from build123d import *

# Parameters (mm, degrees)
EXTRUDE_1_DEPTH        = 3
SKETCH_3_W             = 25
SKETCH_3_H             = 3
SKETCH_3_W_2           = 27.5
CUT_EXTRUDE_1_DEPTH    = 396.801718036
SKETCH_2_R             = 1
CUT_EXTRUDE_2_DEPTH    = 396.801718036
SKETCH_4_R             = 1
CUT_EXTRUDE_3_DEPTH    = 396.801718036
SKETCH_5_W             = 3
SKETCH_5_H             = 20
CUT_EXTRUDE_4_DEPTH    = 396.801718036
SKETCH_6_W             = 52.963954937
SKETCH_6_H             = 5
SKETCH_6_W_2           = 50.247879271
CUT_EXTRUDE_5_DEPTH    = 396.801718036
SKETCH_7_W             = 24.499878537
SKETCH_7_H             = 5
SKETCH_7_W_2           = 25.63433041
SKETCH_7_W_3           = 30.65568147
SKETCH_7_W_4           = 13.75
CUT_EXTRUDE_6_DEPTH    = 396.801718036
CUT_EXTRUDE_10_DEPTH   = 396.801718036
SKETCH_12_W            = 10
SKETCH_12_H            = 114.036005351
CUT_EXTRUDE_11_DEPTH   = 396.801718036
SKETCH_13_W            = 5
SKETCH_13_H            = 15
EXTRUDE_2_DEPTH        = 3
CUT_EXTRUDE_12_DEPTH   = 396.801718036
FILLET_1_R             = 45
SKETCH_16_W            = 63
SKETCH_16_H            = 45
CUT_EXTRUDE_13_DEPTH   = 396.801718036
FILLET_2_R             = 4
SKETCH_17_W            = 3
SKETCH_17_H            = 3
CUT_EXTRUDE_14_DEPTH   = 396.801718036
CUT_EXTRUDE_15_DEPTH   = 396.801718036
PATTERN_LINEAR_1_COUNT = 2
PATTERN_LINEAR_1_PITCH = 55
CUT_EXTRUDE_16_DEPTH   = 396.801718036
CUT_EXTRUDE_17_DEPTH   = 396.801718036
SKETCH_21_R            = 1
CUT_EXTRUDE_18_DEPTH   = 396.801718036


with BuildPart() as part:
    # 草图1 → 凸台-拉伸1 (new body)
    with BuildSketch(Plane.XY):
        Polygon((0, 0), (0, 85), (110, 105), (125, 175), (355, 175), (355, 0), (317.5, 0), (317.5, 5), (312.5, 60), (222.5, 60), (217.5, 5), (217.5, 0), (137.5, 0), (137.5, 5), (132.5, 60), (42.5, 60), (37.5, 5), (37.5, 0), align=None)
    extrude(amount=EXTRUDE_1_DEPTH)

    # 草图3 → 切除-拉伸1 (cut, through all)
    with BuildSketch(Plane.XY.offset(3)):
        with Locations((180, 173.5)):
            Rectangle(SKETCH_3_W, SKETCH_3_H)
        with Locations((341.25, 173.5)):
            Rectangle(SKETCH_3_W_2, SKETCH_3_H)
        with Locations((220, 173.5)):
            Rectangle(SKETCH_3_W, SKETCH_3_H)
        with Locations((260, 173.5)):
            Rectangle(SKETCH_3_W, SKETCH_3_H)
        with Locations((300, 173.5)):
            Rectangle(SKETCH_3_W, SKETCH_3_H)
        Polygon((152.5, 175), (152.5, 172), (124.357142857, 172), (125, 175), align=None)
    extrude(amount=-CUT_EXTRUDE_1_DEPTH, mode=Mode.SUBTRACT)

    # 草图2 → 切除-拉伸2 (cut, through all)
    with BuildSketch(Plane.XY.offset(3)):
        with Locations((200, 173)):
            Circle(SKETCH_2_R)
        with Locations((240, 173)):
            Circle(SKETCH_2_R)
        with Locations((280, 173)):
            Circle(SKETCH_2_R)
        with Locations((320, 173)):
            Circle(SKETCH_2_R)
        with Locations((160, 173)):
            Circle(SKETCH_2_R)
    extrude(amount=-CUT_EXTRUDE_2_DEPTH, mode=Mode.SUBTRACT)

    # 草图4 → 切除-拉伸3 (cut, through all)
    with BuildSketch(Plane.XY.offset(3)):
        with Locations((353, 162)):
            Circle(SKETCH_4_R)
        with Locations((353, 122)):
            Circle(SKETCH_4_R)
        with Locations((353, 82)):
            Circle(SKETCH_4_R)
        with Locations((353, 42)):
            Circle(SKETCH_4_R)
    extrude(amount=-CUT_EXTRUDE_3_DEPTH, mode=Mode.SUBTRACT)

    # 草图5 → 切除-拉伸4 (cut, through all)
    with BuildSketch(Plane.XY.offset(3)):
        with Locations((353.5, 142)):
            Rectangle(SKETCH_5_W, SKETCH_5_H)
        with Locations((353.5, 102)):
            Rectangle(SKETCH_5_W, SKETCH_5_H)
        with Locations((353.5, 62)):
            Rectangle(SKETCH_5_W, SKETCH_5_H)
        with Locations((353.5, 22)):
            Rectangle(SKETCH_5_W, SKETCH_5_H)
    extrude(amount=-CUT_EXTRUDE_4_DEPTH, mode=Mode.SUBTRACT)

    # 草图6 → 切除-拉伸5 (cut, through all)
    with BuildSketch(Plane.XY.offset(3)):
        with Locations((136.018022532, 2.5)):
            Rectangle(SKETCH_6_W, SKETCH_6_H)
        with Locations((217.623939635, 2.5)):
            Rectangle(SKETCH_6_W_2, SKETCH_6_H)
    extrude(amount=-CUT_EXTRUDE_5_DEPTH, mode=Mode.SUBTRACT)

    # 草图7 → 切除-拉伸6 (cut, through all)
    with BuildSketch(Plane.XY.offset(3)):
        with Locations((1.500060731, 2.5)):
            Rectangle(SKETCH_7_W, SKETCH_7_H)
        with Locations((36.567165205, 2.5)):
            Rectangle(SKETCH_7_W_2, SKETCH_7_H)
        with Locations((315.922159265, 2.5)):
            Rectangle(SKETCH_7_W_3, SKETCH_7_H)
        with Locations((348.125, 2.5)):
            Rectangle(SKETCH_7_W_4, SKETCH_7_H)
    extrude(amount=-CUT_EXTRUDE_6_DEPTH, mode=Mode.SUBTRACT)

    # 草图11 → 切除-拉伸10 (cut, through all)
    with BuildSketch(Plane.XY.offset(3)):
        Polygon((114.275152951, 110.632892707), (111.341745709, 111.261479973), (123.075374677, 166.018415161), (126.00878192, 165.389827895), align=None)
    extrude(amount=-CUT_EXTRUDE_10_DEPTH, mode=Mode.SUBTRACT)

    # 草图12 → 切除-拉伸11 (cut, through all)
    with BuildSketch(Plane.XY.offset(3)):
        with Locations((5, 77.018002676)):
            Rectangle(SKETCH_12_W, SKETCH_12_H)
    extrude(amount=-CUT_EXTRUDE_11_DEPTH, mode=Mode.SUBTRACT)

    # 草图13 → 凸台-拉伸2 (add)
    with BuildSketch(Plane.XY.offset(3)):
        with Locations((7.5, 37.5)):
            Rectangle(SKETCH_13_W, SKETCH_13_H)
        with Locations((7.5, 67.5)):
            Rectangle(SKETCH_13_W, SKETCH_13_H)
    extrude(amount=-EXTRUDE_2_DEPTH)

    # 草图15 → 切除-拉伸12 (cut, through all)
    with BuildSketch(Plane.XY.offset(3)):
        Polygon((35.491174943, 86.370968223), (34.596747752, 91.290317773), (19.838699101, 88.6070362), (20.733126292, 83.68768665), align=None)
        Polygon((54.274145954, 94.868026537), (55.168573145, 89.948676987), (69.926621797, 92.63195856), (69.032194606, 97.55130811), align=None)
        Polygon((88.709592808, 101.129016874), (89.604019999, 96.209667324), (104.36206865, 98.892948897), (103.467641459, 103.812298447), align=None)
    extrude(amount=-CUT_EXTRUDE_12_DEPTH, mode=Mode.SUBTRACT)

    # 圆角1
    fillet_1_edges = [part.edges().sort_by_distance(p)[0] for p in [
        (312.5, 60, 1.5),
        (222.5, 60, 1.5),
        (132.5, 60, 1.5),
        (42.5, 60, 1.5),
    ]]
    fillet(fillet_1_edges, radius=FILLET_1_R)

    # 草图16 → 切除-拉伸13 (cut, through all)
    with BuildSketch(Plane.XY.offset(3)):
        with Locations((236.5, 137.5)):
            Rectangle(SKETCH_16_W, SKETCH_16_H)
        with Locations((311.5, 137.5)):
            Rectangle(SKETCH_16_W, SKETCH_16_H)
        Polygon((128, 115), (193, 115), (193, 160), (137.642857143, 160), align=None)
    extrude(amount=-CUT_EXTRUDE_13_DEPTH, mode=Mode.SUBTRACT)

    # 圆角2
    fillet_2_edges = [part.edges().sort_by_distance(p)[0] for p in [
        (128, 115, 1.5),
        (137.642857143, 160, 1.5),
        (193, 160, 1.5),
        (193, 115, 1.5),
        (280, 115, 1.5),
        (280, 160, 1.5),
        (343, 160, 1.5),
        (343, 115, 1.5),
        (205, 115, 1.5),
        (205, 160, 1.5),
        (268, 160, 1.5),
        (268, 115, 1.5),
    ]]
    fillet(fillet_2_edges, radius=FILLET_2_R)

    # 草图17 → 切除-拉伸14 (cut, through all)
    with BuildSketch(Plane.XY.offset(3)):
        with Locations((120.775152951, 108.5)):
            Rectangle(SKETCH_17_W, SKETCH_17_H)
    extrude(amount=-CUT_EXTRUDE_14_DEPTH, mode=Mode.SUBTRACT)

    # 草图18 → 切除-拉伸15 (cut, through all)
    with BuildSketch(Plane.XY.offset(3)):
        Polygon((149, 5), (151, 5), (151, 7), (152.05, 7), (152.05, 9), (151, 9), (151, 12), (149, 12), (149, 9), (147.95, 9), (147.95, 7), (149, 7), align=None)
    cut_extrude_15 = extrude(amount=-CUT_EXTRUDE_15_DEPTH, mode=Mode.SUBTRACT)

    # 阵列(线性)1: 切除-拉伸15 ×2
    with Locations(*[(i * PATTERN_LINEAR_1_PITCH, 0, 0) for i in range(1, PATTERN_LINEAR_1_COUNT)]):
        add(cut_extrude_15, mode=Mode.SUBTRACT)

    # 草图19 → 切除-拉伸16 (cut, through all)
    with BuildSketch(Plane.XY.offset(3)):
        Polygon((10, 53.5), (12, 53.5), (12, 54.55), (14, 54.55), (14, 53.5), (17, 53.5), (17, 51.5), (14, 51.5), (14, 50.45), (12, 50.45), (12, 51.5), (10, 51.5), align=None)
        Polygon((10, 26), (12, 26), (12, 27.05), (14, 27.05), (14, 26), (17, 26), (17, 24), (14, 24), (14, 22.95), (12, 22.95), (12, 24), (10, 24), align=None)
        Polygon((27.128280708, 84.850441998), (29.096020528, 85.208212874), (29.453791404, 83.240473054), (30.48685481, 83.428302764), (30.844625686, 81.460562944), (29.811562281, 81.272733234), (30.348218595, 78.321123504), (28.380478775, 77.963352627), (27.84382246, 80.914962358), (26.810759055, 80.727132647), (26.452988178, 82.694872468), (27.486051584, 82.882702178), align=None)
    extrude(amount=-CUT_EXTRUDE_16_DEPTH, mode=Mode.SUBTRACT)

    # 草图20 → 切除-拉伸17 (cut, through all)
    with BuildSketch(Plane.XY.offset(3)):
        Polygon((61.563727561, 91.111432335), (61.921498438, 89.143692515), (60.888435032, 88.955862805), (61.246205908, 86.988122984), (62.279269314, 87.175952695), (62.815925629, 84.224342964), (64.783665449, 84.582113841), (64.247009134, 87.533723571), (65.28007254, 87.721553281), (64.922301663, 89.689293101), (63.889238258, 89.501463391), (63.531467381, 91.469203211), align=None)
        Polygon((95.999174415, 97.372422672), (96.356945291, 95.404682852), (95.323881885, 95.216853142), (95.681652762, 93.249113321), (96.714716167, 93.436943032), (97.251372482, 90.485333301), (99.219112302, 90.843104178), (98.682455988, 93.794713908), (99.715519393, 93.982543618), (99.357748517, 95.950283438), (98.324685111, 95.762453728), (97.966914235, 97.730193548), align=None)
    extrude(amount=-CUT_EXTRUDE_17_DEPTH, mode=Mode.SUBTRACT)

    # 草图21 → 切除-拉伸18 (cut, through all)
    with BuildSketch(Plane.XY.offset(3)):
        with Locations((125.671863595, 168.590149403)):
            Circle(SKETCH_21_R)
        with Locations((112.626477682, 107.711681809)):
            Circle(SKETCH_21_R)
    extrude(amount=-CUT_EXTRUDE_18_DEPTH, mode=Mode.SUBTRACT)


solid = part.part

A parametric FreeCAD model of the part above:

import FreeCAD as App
import Part
import Sketcher
from FreeCAD import Vector


def edges_at(feature, points):
    """Names of the edges that pass closest to the given points."""
    edges = feature.Shape.Edges
    near = lambda p: min(range(len(edges)), key=lambda i: edges[i].distToShape(Part.Vertex(*p))[0])
    return sorted({f"Edge{near(p) + 1}" for p in points})


def add_polygon(sketch, points):
    """Adds a closed chain of lines whose ends are joined by coincident constraints."""
    first, n = sketch.GeometryCount, len(points)
    for a, b in zip(points, points[1:] + points[:1]):
        sketch.addGeometry(Part.LineSegment(App.Vector(*a, 0), App.Vector(*b, 0)), False)
    for i in range(n):
        sketch.addConstraint(Sketcher.Constraint("Coincident", first + i, 2, first + (i + 1) % n, 1))

doc = App.newDocument("Part")
body = doc.addObject("PartDesign::Body", "Body")

sketch1 = body.newObject("Sketcher::SketchObject", "Sketch")
sketch1.AttachmentSupport = (doc.getObject("XY_Plane"), [""])
sketch1.MapMode = "FlatFace"
add_polygon(sketch1, [(0, 85), (0, 0), (37.5, 0), (37.5, 5), (42.5, 60), (132.5, 60), (137.5, 5), (137.5, 0), (217.5, 0), (217.5, 5), (222.5, 60), (312.5, 60), (317.5, 5), (317.5, 0), (355, 0), (355, 175), (125, 175), (110, 105)])
sketch1.addConstraint([
    Sketcher.Constraint("Vertical", 0),
    Sketcher.Constraint("Horizontal", 1),
    Sketcher.Constraint("Vertical", 2),
    Sketcher.Constraint("Horizontal", 4),
    Sketcher.Constraint("Vertical", 6),
    Sketcher.Constraint("Horizontal", 7),
    Sketcher.Constraint("Vertical", 8),
    Sketcher.Constraint("Horizontal", 10),
    Sketcher.Constraint("Vertical", 12),
    Sketcher.Constraint("Horizontal", 13),
    Sketcher.Constraint("Vertical", 14),
    Sketcher.Constraint("Horizontal", 15),
    Sketcher.Constraint("Coincident", 0, 2, -1, 1),
    Sketcher.Constraint("PointOnObject", 6, 2, -1),
    Sketcher.Constraint("PointOnObject", 12, 2, -1),
    Sketcher.Constraint("Parallel", 3, 9),
    Sketcher.Constraint("Parallel", 5, 11),
    Sketcher.Constraint("Horizontal", 2, 2, 5, 2),
    Sketcher.Constraint("Horizontal", 5, 2, 8, 2),
    Sketcher.Constraint("Horizontal", 4, 2, 9, 2),
    Sketcher.Constraint("Horizontal", 8, 2, 11, 2),
    Sketcher.Constraint("Equal", 4, 10),
    Sketcher.Constraint("Equal", 1, 13),
    Sketcher.Constraint("Equal", 3, 5),
    Sketcher.Constraint("DistanceX", 4, 1, 4, 2, 90.0),
    Sketcher.Constraint("DistanceX", 7, 1, 7, 2, 80.0),
    Sketcher.Constraint("DistanceX", 15, 2, 15, 1, 230.0),
    Sketcher.Constraint("DistanceY", 0, 2, 0, 1, 85.0),
    Sketcher.Constraint("DistanceY", 2, 1, 2, 2, 5.0),
    Sketcher.Constraint("DistanceY", 14, 1, 14, 2, 175.0),
    Sketcher.Constraint("DistanceX", 1, 1, 1, 2, 37.5),
    Sketcher.Constraint("DistanceY", -1, 1, 3, 2, 60.0),
    Sketcher.Constraint("DistanceX", -1, 1, 13, 2, 355.0),
    Sketcher.Constraint("DistanceX", -1, 1, 16, 2, 110.0),
    Sketcher.Constraint("DistanceY", -1, 1, 16, 2, 105.0),
])
pad1 = body.newObject("PartDesign::Pad", "Pad")
pad1.Profile = sketch1
pad1.Length = 3

sketch2 = body.newObject("Sketcher::SketchObject", "Sketch001")
sketch2.AttachmentSupport = (doc.getObject("XY_Plane"), [""])
sketch2.MapMode = "FlatFace"
sketch2.AttachmentOffset = App.Placement(Vector(0, 0, 3), App.Rotation())
add_polygon(sketch2, [(167.5, 175), (167.5, 172), (192.5, 172), (192.5, 175)])
add_polygon(sketch2, [(327.5, 175), (327.5, 172), (355, 172), (355, 175)])
add_polygon(sketch2, [(207.5, 175), (207.5, 172), (232.5, 172), (232.5, 175)])
add_polygon(sketch2, [(247.5, 175), (247.5, 172), (272.5, 172), (272.5, 175)])
add_polygon(sketch2, [(287.5, 175), (287.5, 172), (312.5, 172), (312.5, 175)])
add_polygon(sketch2, [(152.5, 172), (152.5, 175), (125, 175), (124.357143, 172)])
sketch2.addConstraint([
    Sketcher.Constraint("Vertical", 0),
    Sketcher.Constraint("Horizontal", 1),
    Sketcher.Constraint("Vertical", 2),
    Sketcher.Constraint("Horizontal", 3),
    Sketcher.Constraint("Vertical", 4),
    Sketcher.Constraint("Horizontal", 5),
    Sketcher.Constraint("Vertical", 6),
    Sketcher.Constraint("Horizontal", 7),
    Sketcher.Constraint("Vertical", 8),
    Sketcher.Constraint("Horizontal", 9),
    Sketcher.Constraint("Vertical", 10),
    Sketcher.Constraint("Horizontal", 11),
    Sketcher.Constraint("Vertical", 12),
    Sketcher.Constraint("Horizontal", 13),
    Sketcher.Constraint("Vertical", 14),
    Sketcher.Constraint("Horizontal", 15),
    Sketcher.Constraint("Vertical", 16),
    Sketcher.Constraint("Horizontal", 17),
    Sketcher.Constraint("Vertical", 18),
    Sketcher.Constraint("Horizontal", 19),
    Sketcher.Constraint("Vertical", 20),
    Sketcher.Constraint("Horizontal", 21),
    Sketcher.Constraint("Horizontal", 23),
    Sketcher.Constraint("Horizontal", 1, 2, 4, 2),
    Sketcher.Constraint("Horizontal", 3, 2, 6, 2),
    Sketcher.Constraint("Horizontal", 5, 2, 8, 2),
    Sketcher.Constraint("Horizontal", 7, 2, 10, 2),
    Sketcher.Constraint("Horizontal", 9, 2, 12, 2),
    Sketcher.Constraint("Horizontal", 11, 2, 14, 2),
    Sketcher.Constraint("Horizontal", 13, 2, 16, 2),
    Sketcher.Constraint("Horizontal", 15, 2, 18, 2),
    Sketcher.Constraint("Horizontal", 19, 2, 20, 2),
    Sketcher.Constraint("Horizontal", 17, 2, 22, 2),
    Sketcher.Constraint("Equal", 3, 9),
    Sketcher.Constraint("Equal", 11, 13),
    Sketcher.Constraint("Equal", 15, 17),
    Sketcher.Constraint("Equal", 7, 21),
    Sketcher.Constraint("DistanceX", 1, 1, 1, 2, 25.0),
    Sketcher.Constraint("DistanceY", 0, 2, 0, 1, 3.0),
    Sketcher.Constraint("DistanceX", 5, 1, 5, 2, 27.5),
    Sketcher.Constraint("DistanceY", -1, 1, 0, 2, 172.0),
    Sketcher.Constraint("DistanceX", -1, 1, 5, 2, 355.0),
    Sketcher.Constraint("DistanceX", -1, 1, 21, 2, 125.0),
    Sketcher.Constraint("DistanceX", 1, 2, 4, 2, 135.0),
    Sketcher.Constraint("DistanceX", 1, 2, 8, 2, 15.0),
    Sketcher.Constraint("DistanceX", 9, 2, 12, 2, 15.0),
    Sketcher.Constraint("DistanceX", 13, 2, 16, 2, 15.0),
    Sketcher.Constraint("DistanceX", 23, 1, 23, 2, 28.142857),
])
pocket1 = body.newObject("PartDesign::Pocket", "Pocket")
pocket1.Profile = sketch2
pocket1.Type = "ThroughAll"

sketch3 = body.newObject("Sketcher::SketchObject", "Sketch002")
sketch3.AttachmentSupport = (doc.getObject("XY_Plane"), [""])
sketch3.MapMode = "FlatFace"
sketch3.AttachmentOffset = App.Placement(Vector(0, 0, 3), App.Rotation())
sketch3.addGeometry([
    Part.Circle(Vector(200, 173, 0), Vector(0, 0, 1), 1),
    Part.Circle(Vector(240, 173, 0), Vector(0, 0, 1), 1),
    Part.Circle(Vector(280, 173, 0), Vector(0, 0, 1), 1),
    Part.Circle(Vector(320, 173, 0), Vector(0, 0, 1), 1),
    Part.Circle(Vector(160, 173, 0), Vector(0, 0, 1), 1),
], False)
sketch3.addConstraint([
    Sketcher.Constraint("Equal", 0, 1),
    Sketcher.Constraint("Equal", 1, 2),
    Sketcher.Constraint("Equal", 2, 3),
    Sketcher.Constraint("Equal", 3, 4),
    Sketcher.Constraint("Horizontal", 0, 3, 1, 3),
    Sketcher.Constraint("Horizontal", 1, 3, 2, 3),
    Sketcher.Constraint("Horizontal", 2, 3, 3, 3),
    Sketcher.Constraint("Horizontal", 3, 3, 4, 3),
    Sketcher.Constraint("Diameter", 0, 2.0),
    Sketcher.Constraint("DistanceX", -1, 1, 0, 3, 200.0),
    Sketcher.Constraint("DistanceY", -1, 1, 0, 3, 173.0),
    Sketcher.Constraint("DistanceX", -1, 1, 1, 3, 240.0),
    Sketcher.Constraint("DistanceX", -1, 1, 2, 3, 280.0),
    Sketcher.Constraint("DistanceX", -1, 1, 3, 3, 320.0),
    Sketcher.Constraint("DistanceX", -1, 1, 4, 3, 160.0),
])
pocket2 = body.newObject("PartDesign::Pocket", "Pocket001")
pocket2.Profile = sketch3
pocket2.Type = "ThroughAll"

sketch4 = body.newObject("Sketcher::SketchObject", "Sketch003")
sketch4.AttachmentSupport = (doc.getObject("XY_Plane"), [""])
sketch4.MapMode = "FlatFace"
sketch4.AttachmentOffset = App.Placement(Vector(0, 0, 3), App.Rotation())
sketch4.addGeometry([
    Part.Circle(Vector(353, 162, 0), Vector(0, 0, 1), 1),
    Part.Circle(Vector(353, 122, 0), Vector(0, 0, 1), 1),
    Part.Circle(Vector(353, 82, 0), Vector(0, 0, 1), 1),
    Part.Circle(Vector(353, 42, 0), Vector(0, 0, 1), 1),
], False)
sketch4.addConstraint([
    Sketcher.Constraint("Equal", 0, 1),
    Sketcher.Constraint("Equal", 1, 2),
    Sketcher.Constraint("Equal", 2, 3),
    Sketcher.Constraint("Vertical", 0, 3, 1, 3),
    Sketcher.Constraint("Vertical", 1, 3, 2, 3),
    Sketcher.Constraint("Vertical", 2, 3, 3, 3),
    Sketcher.Constraint("Diameter", 0, 2.0),
    Sketcher.Constraint("DistanceX", -1, 1, 0, 3, 353.0),
    Sketcher.Constraint("DistanceY", -1, 1, 0, 3, 162.0),
    Sketcher.Constraint("DistanceY", -1, 1, 1, 3, 122.0),
    Sketcher.Constraint("DistanceY", -1, 1, 2, 3, 82.0),
    Sketcher.Constraint("DistanceY", -1, 1, 3, 3, 42.0),
])
pocket3 = body.newObject("PartDesign::Pocket", "Pocket002")
pocket3.Profile = sketch4
pocket3.Type = "ThroughAll"

sketch5 = body.newObject("Sketcher::SketchObject", "Sketch004")
sketch5.AttachmentSupport = (doc.getObject("XY_Plane"), [""])
sketch5.MapMode = "FlatFace"
sketch5.AttachmentOffset = App.Placement(Vector(0, 0, 3), App.Rotation())
add_polygon(sketch5, [(352, 152), (352, 132), (355, 132), (355, 152)])
add_polygon(sketch5, [(352, 112), (352, 92), (355, 92), (355, 112)])
add_polygon(sketch5, [(352, 72), (352, 52), (355, 52), (355, 72)])
add_polygon(sketch5, [(352, 32), (352, 12), (355, 12), (355, 32)])
sketch5.addConstraint([
    Sketcher.Constraint("Vertical", 0),
    Sketcher.Constraint("Horizontal", 1),
    Sketcher.Constraint("Vertical", 2),
    Sketcher.Constraint("Horizontal", 3),
    Sketcher.Constraint("Vertical", 4),
    Sketcher.Constraint("Horizontal", 5),
    Sketcher.Constraint("Vertical", 6),
    Sketcher.Constraint("Horizontal", 7),
    Sketcher.Constraint("Vertical", 8),
    Sketcher.Constraint("Horizontal", 9),
    Sketcher.Constraint("Vertical", 10),
    Sketcher.Constraint("Horizontal", 11),
    Sketcher.Constraint("Vertical", 12),
    Sketcher.Constraint("Horizontal", 13),
    Sketcher.Constraint("Vertical", 14),
    Sketcher.Constraint("Horizontal", 15),
    Sketcher.Constraint("Vertical", 3, 2, 4, 2),
    Sketcher.Constraint("Vertical", 2, 2, 5, 2),
    Sketcher.Constraint("Vertical", 7, 2, 8, 2),
    Sketcher.Constraint("Vertical", 6, 2, 9, 2),
    Sketcher.Constraint("Vertical", 11, 2, 12, 2),
    Sketcher.Constraint("Vertical", 10, 2, 13, 2),
    Sketcher.Constraint("Equal", 2, 4),
    Sketcher.Constraint("Equal", 6, 8),
    Sketcher.Constraint("Equal", 10, 12),
    Sketcher.Constraint("DistanceX", 1, 1, 1, 2, 3.0),
    Sketcher.Constraint("DistanceY", 0, 2, 0, 1, 20.0),
    Sketcher.Constraint("DistanceX", -1, 1, 0, 2, 352.0),
    Sketcher.Constraint("DistanceY", -1, 1, 0, 2, 132.0),
    Sketcher.Constraint("DistanceY", -1, 1, 4, 2, 92.0),
    Sketcher.Constraint("DistanceY", -1, 1, 8, 2, 52.0),
    Sketcher.Constraint("DistanceY", -1, 1, 12, 2, 12.0),
])
pocket4 = body.newObject("PartDesign::Pocket", "Pocket003")
pocket4.Profile = sketch5
pocket4.Type = "ThroughAll"

sketch6 = body.newObject("Sketcher::SketchObject", "Sketch005")
sketch6.AttachmentSupport = (doc.getObject("XY_Plane"), [""])
sketch6.MapMode = "FlatFace"
sketch6.AttachmentOffset = App.Placement(Vector(0, 0, 3), App.Rotation())
add_polygon(sketch6, [(109.536045, 5), (109.536045, 0), (162.5, 0), (162.5, 5)])
add_polygon(sketch6, [(192.5, 5), (192.5, 0), (242.747879, 0), (242.747879, 5)])
sketch6.addConstraint([
    Sketcher.Constraint("Vertical", 0),
    Sketcher.Constraint("Horizontal", 1),
    Sketcher.Constraint("Vertical", 2),
    Sketcher.Constraint("Horizontal", 3),
    Sketcher.Constraint("Vertical", 4),
    Sketcher.Constraint("Horizontal", 5),
    Sketcher.Constraint("Vertical", 6),
    Sketcher.Constraint("Horizontal", 7),
    Sketcher.Constraint("PointOnObject", 0, 2, -1),
    Sketcher.Constraint("PointOnObject", 4, 2, -1),
    Sketcher.Constraint("Horizontal", 3, 2, 6, 2),
    Sketcher.Constraint("DistanceY", 0, 2, 0, 1, 5.0),
    Sketcher.Constraint("DistanceX", 1, 2, 4, 2, 30.0),
    Sketcher.Constraint("DistanceX", -1, 1, 1, 2, 162.5),
    Sketcher.Constraint("DistanceX", 5, 1, 5, 2, 50.247879),
    Sketcher.Constraint("DistanceX", 1, 1, 1, 2, 52.963955),
])
pocket5 = body.newObject("PartDesign::Pocket", "Pocket004")
pocket5.Profile = sketch6
pocket5.Type = "ThroughAll"

sketch7 = body.newObject("Sketcher::SketchObject", "Sketch006")
sketch7.AttachmentSupport = (doc.getObject("XY_Plane"), [""])
sketch7.MapMode = "FlatFace"
sketch7.AttachmentOffset = App.Placement(Vector(0, 0, 3), App.Rotation())
add_polygon(sketch7, [(-10.749879, 5), (-10.749879, 0), (13.75, 0), (13.75, 5)])
add_polygon(sketch7, [(23.75, 5), (23.75, 0), (49.38433, 0), (49.38433, 5)])
add_polygon(sketch7, [(300.594319, 5), (300.594319, 0), (331.25, 0), (331.25, 5)])
add_polygon(sketch7, [(341.25, 5), (341.25, 0), (355, 0), (355, 5)])
sketch7.addConstraint([
    Sketcher.Constraint("Vertical", 0),
    Sketcher.Constraint("Horizontal", 1),
    Sketcher.Constraint("Vertical", 2),
    Sketcher.Constraint("Horizontal", 3),
    Sketcher.Constraint("Vertical", 4),
    Sketcher.Constraint("Horizontal", 5),
    Sketcher.Constraint("Vertical", 6),
    Sketcher.Constraint("Horizontal", 7),
    Sketcher.Constraint("Vertical", 8),
    Sketcher.Constraint("Horizontal", 9),
    Sketcher.Constraint("Vertical", 10),
    Sketcher.Constraint("Horizontal", 11),
    Sketcher.Constraint("Vertical", 12),
    Sketcher.Constraint("Horizontal", 13),
    Sketcher.Constraint("Vertical", 14),
    Sketcher.Constraint("Horizontal", 15),
    Sketcher.Constraint("PointOnObject", 0, 2, -1),
    Sketcher.Constraint("PointOnObject", 4, 2, -1),
    Sketcher.Constraint("PointOnObject", 8, 2, -1),
    Sketcher.Constraint("PointOnObject", 12, 2, -1),
    Sketcher.Constraint("Horizontal", 3, 2, 6, 2),
    Sketcher.Constraint("Horizontal", 7, 2, 10, 2),
    Sketcher.Constraint("Horizontal", 11, 2, 14, 2),
    Sketcher.Constraint("DistanceY", 0, 2, 0, 1, 5.0),
    Sketcher.Constraint("DistanceX", -1, 1, 13, 2, 355.0),
    Sketcher.Constraint("DistanceX", 1, 2, 4, 2, 10.0),
    Sketcher.Constraint("DistanceX", 9, 2, 12, 2, 10.0),
    Sketcher.Constraint("DistanceX", 13, 1, 13, 2, 13.75),
    Sketcher.Constraint("DistanceX", 4, 2, 9, 2, 307.5),
    Sketcher.Constraint("DistanceX", 1, 1, 1, 2, 24.499879),
    Sketcher.Constraint("DistanceX", 5, 1, 5, 2, 25.63433),
    Sketcher.Constraint("DistanceX", 9, 1, 9, 2, 30.655681),
])
pocket6 = body.newObject("PartDesign::Pocket", "Pocket005")
pocket6.Profile = sketch7
pocket6.Type = "ThroughAll"

sketch8 = body.newObject("Sketcher::SketchObject", "Sketch007")
sketch8.AttachmentSupport = (doc.getObject("XY_Plane"), [""])
sketch8.MapMode = "FlatFace"
sketch8.AttachmentOffset = App.Placement(Vector(0, 0, 3), App.Rotation())
add_polygon(sketch8, [(111.341746, 111.26148), (114.275153, 110.632893), (126.008782, 165.389828), (123.075375, 166.018415)])
sketch8.addConstraint([
    Sketcher.Constraint("Perpendicular", 0, 1),
    Sketcher.Constraint("Perpendicular", 1, 2),
    Sketcher.Constraint("Perpendicular", 2, 3),
    Sketcher.Constraint("Distance", 0, 3.0),
    Sketcher.Constraint("Distance", 1, 56.0),
    Sketcher.Constraint("DistanceX", -1, 1, 1, 2, 126.008782),
    Sketcher.Constraint("DistanceY", -1, 1, 3, 2, 111.26148),
    Sketcher.Constraint("DistanceX", 0, 2, 1, 2, 11.733629),
])
pocket7 = body.newObject("PartDesign::Pocket", "Pocket006")
pocket7.Profile = sketch8
pocket7.Type = "ThroughAll"

sketch9 = body.newObject("Sketcher::SketchObject", "Sketch008")
sketch9.AttachmentSupport = (doc.getObject("XY_Plane"), [""])
sketch9.MapMode = "FlatFace"
sketch9.AttachmentOffset = App.Placement(Vector(0, 0, 3), App.Rotation())
add_polygon(sketch9, [(0, 134.036005), (0, 20), (10, 20), (10, 134.036005)])
sketch9.addConstraint([
    Sketcher.Constraint("Vertical", 0),
    Sketcher.Constraint("Horizontal", 1),
    Sketcher.Constraint("Vertical", 2),
    Sketcher.Constraint("Horizontal", 3),
    Sketcher.Constraint("PointOnObject", 0, 2, -2),
    Sketcher.Constraint("DistanceX", 1, 1, 1, 2, 10.0),
    Sketcher.Constraint("DistanceY", -1, 1, 0, 2, 20.0),
    Sketcher.Constraint("DistanceY", 0, 2, 0, 1, 114.036005),
])
pocket8 = body.newObject("PartDesign::Pocket", "Pocket007")
pocket8.Profile = sketch9
pocket8.Type = "ThroughAll"

sketch10 = body.newObject("Sketcher::SketchObject", "Sketch009")
sketch10.AttachmentSupport = (doc.getObject("XY_Plane"), [""])
sketch10.MapMode = "FlatFace"
sketch10.AttachmentOffset = App.Placement(Vector(0, 0, 3), App.Rotation())
add_polygon(sketch10, [(5, 45), (5, 30), (10, 30), (10, 45)])
add_polygon(sketch10, [(5, 75), (5, 60), (10, 60), (10, 75)])
sketch10.addConstraint([
    Sketcher.Constraint("Vertical", 0),
    Sketcher.Constraint("Horizontal", 1),
    Sketcher.Constraint("Vertical", 2),
    Sketcher.Constraint("Horizontal", 3),
    Sketcher.Constraint("Vertical", 4),
    Sketcher.Constraint("Horizontal", 5),
    Sketcher.Constraint("Vertical", 6),
    Sketcher.Constraint("Horizontal", 7),
    Sketcher.Constraint("Vertical", 3, 2, 4, 2),
    Sketcher.Constraint("Vertical", 2, 2, 5, 2),
    Sketcher.Constraint("Equal", 2, 4),
    Sketcher.Constraint("DistanceX", 1, 1, 1, 2, 5.0),
    Sketcher.Constraint("DistanceY", 0, 2, 0, 1, 15.0),
    Sketcher.Constraint("DistanceX", -1, 1, 0, 2, 5.0),
    Sketcher.Constraint("DistanceY", -1, 1, 0, 2, 30.0),
    Sketcher.Constraint("DistanceY", -1, 1, 4, 2, 60.0),
])
pad2 = body.newObject("PartDesign::Pad", "Pad001")
pad2.Profile = sketch10
pad2.Length = 3
pad2.Reversed = True

sketch11 = body.newObject("Sketcher::SketchObject", "Sketch010")
sketch11.AttachmentSupport = (doc.getObject("XY_Plane"), [""])
sketch11.MapMode = "FlatFace"
sketch11.AttachmentOffset = App.Placement(Vector(0, 0, 3), App.Rotation())
add_polygon(sketch11, [(35.491175, 86.370968), (34.596748, 91.290318), (19.838699, 88.607036), (20.733126, 83.687687)])
add_polygon(sketch11, [(54.274146, 94.868027), (55.168573, 89.948677), (69.926622, 92.631959), (69.032195, 97.551308)])
add_polygon(sketch11, [(88.709593, 101.129017), (89.60402, 96.209667), (104.362069, 98.892949), (103.467641, 103.812298)])
sketch11.addConstraint([
    Sketcher.Constraint("Perpendicular", 0, 1),
    Sketcher.Constraint("Perpendicular", 1, 2),
    Sketcher.Constraint("Perpendicular", 2, 3),
    Sketcher.Constraint("Perpendicular", 3, 4),
    Sketcher.Constraint("Perpendicular", 4, 5),
    Sketcher.Constraint("Perpendicular", 5, 6),
    Sketcher.Constraint("Perpendicular", 6, 7),
    Sketcher.Constraint("Perpendicular", 7, 8),
    Sketcher.Constraint("Perpendicular", 8, 9),
    Sketcher.Constraint("Perpendicular", 9, 10),
    Sketcher.Constraint("Perpendicular", 10, 11),
    Sketcher.Constraint("Equal", 2, 4),
    Sketcher.Constraint("Equal", 3, 5),
    Sketcher.Constraint("Equal", 6, 8),
    Sketcher.Constraint("Equal", 7, 9),
    Sketcher.Constraint("Distance", 0, 5.0),
    Sketcher.Constraint("Distance", 1, 15.0),
    Sketcher.Constraint("DistanceX", -1, 1, 1, 2, 19.838699),
    Sketcher.Constraint("DistanceY", -1, 1, 10, 2, 103.812298),
    Sketcher.Constraint("DistanceX", 3, 2, 4, 2, 19.677398),
    Sketcher.Constraint("DistanceX", 5, 2, 8, 2, 19.677398),
    Sketcher.Constraint("DistanceY", 3, 2, 8, 2, 9.838699),
    Sketcher.Constraint("DistanceY", -1, 1, 3, 2, 86.370968),
    Sketcher.Constraint("DistanceY", -1, 1, 5, 2, 92.631959),
])
pocket9 = body.newObject("PartDesign::Pocket", "Pocket008")
pocket9.Profile = sketch11
pocket9.Type = "ThroughAll"
doc.recompute()

fillet = body.newObject("PartDesign::Fillet", "Fillet")
fillet.Base = (pocket9, edges_at(pocket9, [
    (312.5, 60, 1.5),
    (222.5, 60, 1.5),
    (132.5, 60, 1.5),
    (42.5, 60, 1.5),
]))
fillet.Radius = 45

sketch12 = body.newObject("Sketcher::SketchObject", "Sketch011")
sketch12.AttachmentSupport = (doc.getObject("XY_Plane"), [""])
sketch12.MapMode = "FlatFace"
sketch12.AttachmentOffset = App.Placement(Vector(0, 0, 3), App.Rotation())
add_polygon(sketch12, [(205, 160), (205, 115), (268, 115), (268, 160)])
add_polygon(sketch12, [(280, 160), (280, 115), (343, 115), (343, 160)])
add_polygon(sketch12, [(128, 115), (193, 115), (193, 160), (137.642857, 160)])
sketch12.addConstraint([
    Sketcher.Constraint("Vertical", 0),
    Sketcher.Constraint("Horizontal", 1),
    Sketcher.Constraint("Vertical", 2),
    Sketcher.Constraint("Horizontal", 3),
    Sketcher.Constraint("Vertical", 4),
    Sketcher.Constraint("Horizontal", 5),
    Sketcher.Constraint("Vertical", 6),
    Sketcher.Constraint("Horizontal", 7),
    Sketcher.Constraint("Horizontal", 8),
    Sketcher.Constraint("Vertical", 9),
    Sketcher.Constraint("Horizontal", 10),
    Sketcher.Constraint("Horizontal", 1, 2, 4, 2),
    Sketcher.Constraint("Horizontal", 3, 2, 6, 2),
    Sketcher.Constraint("Horizontal", 5, 2, 8, 2),
    Sketcher.Constraint("Horizontal", 7, 2, 9, 2),
    Sketcher.Constraint("Equal", 3, 5),
    Sketcher.Constraint("DistanceX", 1, 1, 1, 2, 63.0),
    Sketcher.Constraint("DistanceX", 8, 1, 8, 2, 65.0),
    Sketcher.Constraint("DistanceY", 0, 2, 0, 1, 45.0),
    Sketcher.Constraint("DistanceX", -1, 1, 0, 2, 205.0),
    Sketcher.Constraint("DistanceY", -1, 1, 0, 2, 115.0),
    Sketcher.Constraint("DistanceX", -1, 1, 4, 2, 280.0),
    Sketcher.Constraint("DistanceX", -1, 1, 8, 2, 193.0),
    Sketcher.Constraint("DistanceX", 10, 2, 10, 1, 55.357143),
])
pocket10 = body.newObject("PartDesign::Pocket", "Pocket009")
pocket10.Profile = sketch12
pocket10.Type = "ThroughAll"
doc.recompute()

fillet2 = body.newObject("PartDesign::Fillet", "Fillet001")
fillet2.Base = (pocket10, edges_at(pocket10, [
    (128, 115, 1.5),
    (137.643, 160, 1.5),
    (193, 160, 1.5),
    (193, 115, 1.5),
    (280, 115, 1.5),
    (280, 160, 1.5),
    (343, 160, 1.5),
    (343, 115, 1.5),
    (205, 115, 1.5),
    (205, 160, 1.5),
    (268, 160, 1.5),
    (268, 115, 1.5),
]))
fillet2.Radius = 4

sketch13 = body.newObject("Sketcher::SketchObject", "Sketch012")
sketch13.AttachmentSupport = (doc.getObject("XY_Plane"), [""])
sketch13.MapMode = "FlatFace"
sketch13.AttachmentOffset = App.Placement(Vector(0, 0, 3), App.Rotation())
add_polygon(sketch13, [(119.275153, 110), (119.275153, 107), (122.275153, 107), (122.275153, 110)])
sketch13.addConstraint([
    Sketcher.Constraint("Vertical", 0),
    Sketcher.Constraint("Horizontal", 1),
    Sketcher.Constraint("Vertical", 2),
    Sketcher.Constraint("Horizontal", 3),
    Sketcher.Constraint("Equal", 3, 0),
    Sketcher.Constraint("DistanceX", 1, 1, 1, 2, 3.0),
    Sketcher.Constraint("DistanceY", -1, 1, 0, 2, 107.0),
    Sketcher.Constraint("DistanceX", -1, 1, 0, 2, 119.275153),
])
pocket11 = body.newObject("PartDesign::Pocket", "Pocket010")
pocket11.Profile = sketch13
pocket11.Type = "ThroughAll"

sketch14 = body.newObject("Sketcher::SketchObject", "Sketch013")
sketch14.AttachmentSupport = (doc.getObject("XY_Plane"), [""])
sketch14.MapMode = "FlatFace"
sketch14.AttachmentOffset = App.Placement(Vector(0, 0, 3), App.Rotation())
add_polygon(sketch14, [(149, 5), (151, 5), (151, 7), (152.05, 7), (152.05, 9), (151, 9), (151, 12), (149, 12), (149, 9), (147.95, 9), (147.95, 7), (149, 7)])
sketch14.addConstraint([
    Sketcher.Constraint("Horizontal", 0),
    Sketcher.Constraint("Vertical", 1),
    Sketcher.Constraint("Horizontal", 2),
    Sketcher.Constraint("Vertical", 3),
    Sketcher.Constraint("Horizontal", 4),
    Sketcher.Constraint("Vertical", 5),
    Sketcher.Constraint("Horizontal", 6),
    Sketcher.Constraint("Vertical", 7),
    Sketcher.Constraint("Horizontal", 8),
    Sketcher.Constraint("Vertical", 9),
    Sketcher.Constraint("Horizontal", 10),
    Sketcher.Constraint("Vertical", 11),
    Sketcher.Constraint("Horizontal", 4, 2, 7, 2),
    Sketcher.Constraint("Horizontal", 2, 2, 9, 2),
    Sketcher.Constraint("Vertical", 1, 2, 4, 2),
    Sketcher.Constraint("Vertical", 7, 2, 10, 2),
    Sketcher.Constraint("Equal", 4, 8),
    Sketcher.Constraint("Equal", 6, 1),
    Sketcher.Constraint("Equal", 1, 3),
    Sketcher.Constraint("DistanceX", 0, 1, 0, 2, 2.0),
    Sketcher.Constraint("DistanceY", 5, 1, 5, 2, 3.0),
    Sketcher.Constraint("DistanceX", -1, 1, 0, 2, 151.0),
    Sketcher.Constraint("DistanceY", -1, 1, 0, 2, 5.0),
    Sketcher.Constraint("DistanceX", 2, 1, 2, 2, 1.05),
])
pocket12 = body.newObject("PartDesign::Pocket", "Pocket011")
pocket12.Profile = sketch14
pocket12.Type = "ThroughAll"
doc.recompute()

linearpattern = body.newObject("PartDesign::LinearPattern", "LinearPattern")
linearpattern.Originals = [pocket12]
linearpattern.Direction = (doc.getObject("X_Axis"), [""])
linearpattern.Mode = "offset"
linearpattern.Offset = 55
linearpattern.Occurrences = 2
body.Tip = linearpattern

sketch15 = body.newObject("Sketcher::SketchObject", "Sketch014")
sketch15.AttachmentSupport = (doc.getObject("XY_Plane"), [""])
sketch15.MapMode = "FlatFace"
sketch15.AttachmentOffset = App.Placement(Vector(0, 0, 3), App.Rotation())
add_polygon(sketch15, [(12, 53.5), (10, 53.5), (10, 51.5), (12, 51.5), (12, 50.45), (14, 50.45), (14, 51.5), (17, 51.5), (17, 53.5), (14, 53.5), (14, 54.55), (12, 54.55)])
add_polygon(sketch15, [(12, 26), (10, 26), (10, 24), (12, 24), (12, 22.95), (14, 22.95), (14, 24), (17, 24), (17, 26), (14, 26), (14, 27.05), (12, 27.05)])
add_polygon(sketch15, [(29.096021, 85.208213), (27.128281, 84.850442), (27.486052, 82.882702), (26.452988, 82.694872), (26.810759, 80.727133), (27.843822, 80.914962), (28.380479, 77.963353), (30.348219, 78.321124), (29.811562, 81.272733), (30.844626, 81.460563), (30.486855, 83.428303), (29.453791, 83.240473)])
sketch15.addConstraint([
    Sketcher.Constraint("Horizontal", 0),
    Sketcher.Constraint("Vertical", 1),
    Sketcher.Constraint("Horizontal", 2),
    Sketcher.Constraint("Vertical", 3),
    Sketcher.Constraint("Horizontal", 4),
    Sketcher.Constraint("Vertical", 5),
    Sketcher.Constraint("Horizontal", 6),
    Sketcher.Constraint("Vertical", 7),
    Sketcher.Constraint("Horizontal", 8),
    Sketcher.Constraint("Vertical", 9),
    Sketcher.Constraint("Horizontal", 10),
    Sketcher.Constraint("Vertical", 11),
    Sketcher.Constraint("Horizontal", 12),
    Sketcher.Constraint("Vertical", 13),
    Sketcher.Constraint("Horizontal", 14),
    Sketcher.Constraint("Vertical", 15),
    Sketcher.Constraint("Horizontal", 16),
    Sketcher.Constraint("Vertical", 17),
    Sketcher.Constraint("Horizontal", 18),
    Sketcher.Constraint("Vertical", 19),
    Sketcher.Constraint("Horizontal", 20),
    Sketcher.Constraint("Vertical", 21),
    Sketcher.Constraint("Horizontal", 22),
    Sketcher.Constraint("Vertical", 23),
    Sketcher.Constraint("Perpendicular", 24, 25),
    Sketcher.Constraint("Perpendicular", 25, 26),
    Sketcher.Constraint("Perpendicular", 26, 27),
    Sketcher.Constraint("Perpendicular", 27, 28),
    Sketcher.Constraint("Perpendicular", 28, 29),
    Sketcher.Constraint("Perpendicular", 29, 30),
    Sketcher.Constraint("Perpendicular", 30, 31),
    Sketcher.Constraint("Perpendicular", 31, 32),
    Sketcher.Constraint("Perpendicular", 32, 33),
    Sketcher.Constraint("Perpendicular", 33, 34),
    Sketcher.Constraint("Perpendicular", 34, 35),
    Sketcher.Constraint("Horizontal", 2, 2, 5, 2),
    Sketcher.Constraint("Horizontal", 0, 2, 7, 2),
    Sketcher.Constraint("Horizontal", 14, 2, 17, 2),
    Sketcher.Constraint("Horizontal", 12, 2, 19, 2),
    Sketcher.Constraint("Vertical", 5, 2, 8, 2),
    Sketcher.Constraint("Vertical", 3, 2, 10, 2),
    Sketcher.Constraint("Vertical", 1, 2, 12, 2),
    Sketcher.Constraint("Vertical", 11, 2, 14, 2),
    Sketcher.Constraint("Vertical", 9, 2, 16, 2),
    Sketcher.Constraint("Vertical", 7, 2, 18, 2),
    Sketcher.Constraint("Vertical", 17, 2, 20, 2),
    Sketcher.Constraint("Vertical", 15, 2, 22, 2),
    Sketcher.Constraint("Equal", 2, 4),
    Sketcher.Constraint("Equal", 22, 1),
    Sketcher.Constraint("Equal", 5, 9),
    Sketcher.Constraint("Equal", 7, 13),
    Sketcher.Constraint("Equal", 11, 15),
    Sketcher.Constraint("Equal", 17, 21),
    Sketcher.Constraint("Equal", 24, 25),
    Sketcher.Constraint("Equal", 25, 27),
    Sketcher.Constraint("Equal", 26, 28),
    Sketcher.Constraint("Equal", 27, 30),
    Sketcher.Constraint("Equal", 29, 31),
    Sketcher.Constraint("Equal", 28, 32),
    Sketcher.Constraint("Equal", 30, 33),
    Sketcher.Constraint("DistanceX", 0, 2, 0, 1, 2.0),
    Sketcher.Constraint("DistanceX", 6, 1, 6, 2, 3.0),
    Sketcher.Constraint("Distance", 24, 2.0),
    Sketcher.Constraint("Distance", 29, 3.0),
    Sketcher.Constraint("DistanceX", -1, 1, 0, 2, 10.0),
    Sketcher.Constraint("DistanceY", -1, 1, 12, 2, 26.0),
    Sketcher.Constraint("DistanceY", 3, 2, 3, 1, 1.05),
    Sketcher.Constraint("DistanceY", -1, 1, 0, 2, 53.5),
    Sketcher.Constraint("Distance", 26, 1.05),
    Sketcher.Constraint("DistanceX", 24, 2, 29, 2, 1.252198),
    Sketcher.Constraint("DistanceX", -1, 1, 24, 2, 27.128281),
    Sketcher.Constraint("DistanceY", -1, 1, 24, 2, 84.850442),
])
pocket13 = body.newObject("PartDesign::Pocket", "Pocket012")
pocket13.Profile = sketch15
pocket13.Type = "ThroughAll"

sketch16 = body.newObject("Sketcher::SketchObject", "Sketch015")
sketch16.AttachmentSupport = (doc.getObject("XY_Plane"), [""])
sketch16.MapMode = "FlatFace"
sketch16.AttachmentOffset = App.Placement(Vector(0, 0, 3), App.Rotation())
add_polygon(sketch16, [(61.563728, 91.111432), (61.921498, 89.143693), (60.888435, 88.955863), (61.246206, 86.988123), (62.279269, 87.175953), (62.815926, 84.224343), (64.783665, 84.582114), (64.247009, 87.533724), (65.280073, 87.721553), (64.922302, 89.689293), (63.889238, 89.501463), (63.531467, 91.469203)])
add_polygon(sketch16, [(95.999174, 97.372423), (96.356945, 95.404683), (95.323882, 95.216853), (95.681653, 93.249113), (96.714716, 93.436943), (97.251372, 90.485333), (99.219112, 90.843104), (98.682456, 93.794714), (99.715519, 93.982544), (99.357749, 95.950283), (98.324685, 95.762454), (97.966914, 97.730194)])
sketch16.addConstraint([
    Sketcher.Constraint("Perpendicular", 0, 1),
    Sketcher.Constraint("Perpendicular", 1, 2),
    Sketcher.Constraint("Perpendicular", 2, 3),
    Sketcher.Constraint("Perpendicular", 3, 4),
    Sketcher.Constraint("Perpendicular", 4, 5),
    Sketcher.Constraint("Perpendicular", 5, 6),
    Sketcher.Constraint("Perpendicular", 6, 7),
    Sketcher.Constraint("Perpendicular", 7, 8),
    Sketcher.Constraint("Perpendicular", 8, 9),
    Sketcher.Constraint("Perpendicular", 9, 10),
    Sketcher.Constraint("Perpendicular", 10, 11),
    Sketcher.Constraint("Perpendicular", 11, 12),
    Sketcher.Constraint("Perpendicular", 12, 13),
    Sketcher.Constraint("Perpendicular", 13, 14),
    Sketcher.Constraint("Perpendicular", 14, 15),
    Sketcher.Constraint("Perpendicular", 15, 16),
    Sketcher.Constraint("Perpendicular", 16, 17),
    Sketcher.Constraint("Perpendicular", 17, 18),
    Sketcher.Constraint("Perpendicular", 18, 19),
    Sketcher.Constraint("Perpendicular", 19, 20),
    Sketcher.Constraint("Perpendicular", 20, 21),
    Sketcher.Constraint("Perpendicular", 21, 22),
    Sketcher.Constraint("Perpendicular", 22, 23),
    Sketcher.Constraint("Equal", 0, 2),
    Sketcher.Constraint("Equal", 1, 3),
    Sketcher.Constraint("Equal", 2, 5),
    Sketcher.Constraint("Equal", 4, 6),
    Sketcher.Constraint("Equal", 3, 7),
    Sketcher.Constraint("Equal", 5, 8),
    Sketcher.Constraint("Equal", 7, 9),
    Sketcher.Constraint("Equal", 11, 12),
    Sketcher.Constraint("Equal", 9, 13),
    Sketcher.Constraint("Equal", 12, 14),
    Sketcher.Constraint("Equal", 13, 15),
    Sketcher.Constraint("Equal", 6, 16),
    Sketcher.Constraint("Equal", 14, 17),
    Sketcher.Constraint("Equal", 16, 18),
    Sketcher.Constraint("Equal", 15, 19),
    Sketcher.Constraint("Equal", 17, 20),
    Sketcher.Constraint("Equal", 19, 21),
    Sketcher.Constraint("Distance", 0, 2.0),
    Sketcher.Constraint("Distance", 4, 3.0),
    Sketcher.Constraint("Distance", 1, 1.05),
    Sketcher.Constraint("DistanceX", -1, 1, 0, 2, 61.921498),
    Sketcher.Constraint("DistanceX", -1, 1, 8, 2, 64.922302),
    Sketcher.Constraint("DistanceY", 7, 2, 13, 2, 7.4953),
    Sketcher.Constraint("DistanceX", 7, 2, 16, 2, 31.9713),
    Sketcher.Constraint("DistanceY", -1, 1, 0, 2, 89.143693),
])
pocket14 = body.newObject("PartDesign::Pocket", "Pocket013")
pocket14.Profile = sketch16
pocket14.Type = "ThroughAll"

sketch17 = body.newObject("Sketcher::SketchObject", "Sketch016")
sketch17.AttachmentSupport = (doc.getObject("XY_Plane"), [""])
sketch17.MapMode = "FlatFace"
sketch17.AttachmentOffset = App.Placement(Vector(0, 0, 3), App.Rotation())
sketch17.addGeometry([
    Part.Circle(Vector(125.671864, 168.590149, 0), Vector(0, 0, 1), 1),
    Part.Circle(Vector(112.626478, 107.711682, 0), Vector(0, 0, 1), 1),
], False)
sketch17.addConstraint([
    Sketcher.Constraint("Equal", 0, 1),
    Sketcher.Constraint("Diameter", 0, 2.0),
    Sketcher.Constraint("DistanceY", -1, 1, 0, 3, 168.590149),
    Sketcher.Constraint("DistanceY", -1, 1, 1, 3, 107.711682),
    Sketcher.Constraint("DistanceX", -1, 1, 0, 3, 125.671864),
    Sketcher.Constraint("DistanceX", -1, 1, 1, 3, 112.626478),
])
pocket15 = body.newObject("PartDesign::Pocket", "Pocket014")
pocket15.Profile = sketch17
pocket15.Type = "ThroughAll"

doc.recompute()
